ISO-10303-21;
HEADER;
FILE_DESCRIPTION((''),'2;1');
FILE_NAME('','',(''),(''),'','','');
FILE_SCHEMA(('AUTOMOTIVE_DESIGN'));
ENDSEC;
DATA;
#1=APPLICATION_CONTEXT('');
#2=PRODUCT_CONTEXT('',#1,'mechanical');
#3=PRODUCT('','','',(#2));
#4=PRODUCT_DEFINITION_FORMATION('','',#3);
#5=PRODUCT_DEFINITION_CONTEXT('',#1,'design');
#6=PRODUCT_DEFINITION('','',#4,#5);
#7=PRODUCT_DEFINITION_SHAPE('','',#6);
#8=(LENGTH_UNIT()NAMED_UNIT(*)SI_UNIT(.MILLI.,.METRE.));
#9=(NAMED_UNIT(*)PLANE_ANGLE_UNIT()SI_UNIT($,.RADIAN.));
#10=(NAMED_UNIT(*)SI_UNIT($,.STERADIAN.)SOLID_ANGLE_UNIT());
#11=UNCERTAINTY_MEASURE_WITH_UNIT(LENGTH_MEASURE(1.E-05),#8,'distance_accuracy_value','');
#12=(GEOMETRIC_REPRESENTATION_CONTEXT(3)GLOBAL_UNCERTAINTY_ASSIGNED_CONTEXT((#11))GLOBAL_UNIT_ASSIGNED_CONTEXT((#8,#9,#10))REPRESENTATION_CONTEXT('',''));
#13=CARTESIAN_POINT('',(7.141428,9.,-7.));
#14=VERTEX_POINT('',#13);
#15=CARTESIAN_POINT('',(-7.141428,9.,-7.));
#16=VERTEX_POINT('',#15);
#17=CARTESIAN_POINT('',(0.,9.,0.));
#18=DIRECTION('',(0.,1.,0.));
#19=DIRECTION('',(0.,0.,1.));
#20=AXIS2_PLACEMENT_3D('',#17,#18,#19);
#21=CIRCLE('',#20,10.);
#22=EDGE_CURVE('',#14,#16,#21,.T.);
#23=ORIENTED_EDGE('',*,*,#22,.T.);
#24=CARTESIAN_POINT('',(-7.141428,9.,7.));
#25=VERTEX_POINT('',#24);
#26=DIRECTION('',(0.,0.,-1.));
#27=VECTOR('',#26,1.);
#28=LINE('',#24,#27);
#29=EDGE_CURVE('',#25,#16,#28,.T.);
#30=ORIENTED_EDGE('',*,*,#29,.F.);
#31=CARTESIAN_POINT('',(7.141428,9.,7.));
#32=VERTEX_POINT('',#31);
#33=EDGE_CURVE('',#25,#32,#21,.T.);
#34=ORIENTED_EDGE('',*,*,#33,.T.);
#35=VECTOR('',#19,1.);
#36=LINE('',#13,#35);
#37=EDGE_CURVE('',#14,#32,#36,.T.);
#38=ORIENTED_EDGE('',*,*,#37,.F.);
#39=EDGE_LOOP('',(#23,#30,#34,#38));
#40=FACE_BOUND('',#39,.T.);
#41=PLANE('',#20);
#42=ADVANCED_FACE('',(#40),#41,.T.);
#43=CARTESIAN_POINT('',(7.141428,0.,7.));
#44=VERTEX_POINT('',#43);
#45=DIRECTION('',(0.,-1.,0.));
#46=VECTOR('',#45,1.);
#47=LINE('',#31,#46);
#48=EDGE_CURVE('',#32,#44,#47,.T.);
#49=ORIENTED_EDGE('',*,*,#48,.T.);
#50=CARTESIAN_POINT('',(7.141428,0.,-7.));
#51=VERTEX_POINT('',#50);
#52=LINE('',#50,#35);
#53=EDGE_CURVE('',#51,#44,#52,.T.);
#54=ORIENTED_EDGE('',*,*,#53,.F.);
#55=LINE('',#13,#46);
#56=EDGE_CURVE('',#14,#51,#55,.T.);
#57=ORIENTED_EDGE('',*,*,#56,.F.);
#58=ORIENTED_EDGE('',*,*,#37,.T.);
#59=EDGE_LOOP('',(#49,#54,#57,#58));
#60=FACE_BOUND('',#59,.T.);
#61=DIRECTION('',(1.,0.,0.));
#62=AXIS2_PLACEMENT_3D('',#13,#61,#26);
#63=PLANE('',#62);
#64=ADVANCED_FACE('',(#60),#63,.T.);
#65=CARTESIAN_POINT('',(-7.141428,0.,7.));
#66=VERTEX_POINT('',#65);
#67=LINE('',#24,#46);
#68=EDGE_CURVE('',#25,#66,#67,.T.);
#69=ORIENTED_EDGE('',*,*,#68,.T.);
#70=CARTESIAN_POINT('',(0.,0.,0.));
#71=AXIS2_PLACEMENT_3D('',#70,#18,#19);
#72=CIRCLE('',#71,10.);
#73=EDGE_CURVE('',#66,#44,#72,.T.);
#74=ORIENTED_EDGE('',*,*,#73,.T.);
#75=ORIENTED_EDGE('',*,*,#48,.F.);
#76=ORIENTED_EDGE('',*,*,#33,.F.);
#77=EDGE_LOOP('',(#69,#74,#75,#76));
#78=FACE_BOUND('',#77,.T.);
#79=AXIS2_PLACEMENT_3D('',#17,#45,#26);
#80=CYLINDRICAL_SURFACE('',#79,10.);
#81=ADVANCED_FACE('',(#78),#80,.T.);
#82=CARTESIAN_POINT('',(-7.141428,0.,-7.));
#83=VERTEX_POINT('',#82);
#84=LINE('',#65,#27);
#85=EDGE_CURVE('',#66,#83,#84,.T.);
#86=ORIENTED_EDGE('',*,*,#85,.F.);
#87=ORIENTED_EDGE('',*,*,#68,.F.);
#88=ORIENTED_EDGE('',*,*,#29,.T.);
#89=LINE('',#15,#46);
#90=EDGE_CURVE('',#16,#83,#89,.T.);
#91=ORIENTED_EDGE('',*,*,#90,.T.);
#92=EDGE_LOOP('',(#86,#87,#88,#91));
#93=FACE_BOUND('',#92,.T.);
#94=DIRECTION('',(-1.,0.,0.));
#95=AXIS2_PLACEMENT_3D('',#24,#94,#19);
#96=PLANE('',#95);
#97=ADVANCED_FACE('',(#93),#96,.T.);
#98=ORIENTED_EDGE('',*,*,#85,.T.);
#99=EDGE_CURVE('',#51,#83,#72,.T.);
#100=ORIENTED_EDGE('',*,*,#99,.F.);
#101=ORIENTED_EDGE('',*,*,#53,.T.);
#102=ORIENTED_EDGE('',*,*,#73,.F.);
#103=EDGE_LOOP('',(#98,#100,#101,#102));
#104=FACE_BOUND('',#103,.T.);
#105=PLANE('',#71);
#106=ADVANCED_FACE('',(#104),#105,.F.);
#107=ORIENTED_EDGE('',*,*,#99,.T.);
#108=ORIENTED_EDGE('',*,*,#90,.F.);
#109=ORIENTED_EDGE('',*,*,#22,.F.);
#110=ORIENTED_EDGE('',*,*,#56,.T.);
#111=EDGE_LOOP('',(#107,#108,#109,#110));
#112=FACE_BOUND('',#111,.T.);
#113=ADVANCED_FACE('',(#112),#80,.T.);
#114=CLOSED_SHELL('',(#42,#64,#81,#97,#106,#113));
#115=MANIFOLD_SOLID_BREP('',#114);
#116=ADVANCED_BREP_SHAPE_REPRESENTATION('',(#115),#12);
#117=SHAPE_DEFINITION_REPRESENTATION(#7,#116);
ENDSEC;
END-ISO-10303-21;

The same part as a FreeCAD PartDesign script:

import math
import FreeCAD as App
import Part
import Sketcher
from FreeCAD import Vector

doc = App.newDocument("Part")
body = doc.addObject("PartDesign::Body", "Body")

# Sketch on XZ plane
sketch1 = body.newObject("Sketcher::SketchObject", "Sketch")
sketch1.AttachmentSupport = (doc.getObject("XZ_Plane"), [""])
sketch1.MapMode = "FlatFace"
sketch1.addGeometry(Part.LineSegment(Vector(7, 7, 0), Vector(7, -7, 0)), False)
sketch1.addGeometry(Part.ArcOfCircle(Part.Circle(Vector(0, 0, 0), Vector(0, 0, 1), 10), math.radians(-136), math.radians(-44)), False)
sketch1.addGeometry(Part.LineSegment(Vector(-7, -7, 0), Vector(-7, 7, 0)), False)
sketch1.addGeometry(Part.ArcOfCircle(Part.Circle(Vector(0, 0, 0), Vector(0, 0, 1), 10), math.radians(44), math.radians(136)), False)
sketch1.addConstraint(Sketcher.Constraint("Coincident", 0, 2, 1, 2))
sketch1.addConstraint(Sketcher.Constraint("Coincident", 1, 1, 2, 1))
sketch1.addConstraint(Sketcher.Constraint("Coincident", 2, 2, 3, 2))
sketch1.addConstraint(Sketcher.Constraint("Coincident", 3, 1, 0, 1))
sketch1.addConstraint(Sketcher.Constraint("Vertical", 0))
sketch1.addConstraint(Sketcher.Constraint("Vertical", 2))
sketch1.addConstraint(Sketcher.Constraint("Coincident", 1, 3, -1, 1))
sketch1.addConstraint(Sketcher.Constraint("Coincident", 3, 3, -1, 1))
sketch1.addConstraint(Sketcher.Constraint("Equal", 1, 3))
sketch1.addConstraint(Sketcher.Constraint("Horizontal", 0, 2, 1, 1))
sketch1.addConstraint(Sketcher.Constraint("Radius", 1, 10.0))
sketch1.addConstraint(Sketcher.Constraint("DistanceY", 0, 2, 0, 1, 14.0))
pad1 = body.newObject("PartDesign::Pad", "Pad")
pad1.Profile = sketch1
pad1.Length = 9
pad1.Reversed = True

doc.recompute()
